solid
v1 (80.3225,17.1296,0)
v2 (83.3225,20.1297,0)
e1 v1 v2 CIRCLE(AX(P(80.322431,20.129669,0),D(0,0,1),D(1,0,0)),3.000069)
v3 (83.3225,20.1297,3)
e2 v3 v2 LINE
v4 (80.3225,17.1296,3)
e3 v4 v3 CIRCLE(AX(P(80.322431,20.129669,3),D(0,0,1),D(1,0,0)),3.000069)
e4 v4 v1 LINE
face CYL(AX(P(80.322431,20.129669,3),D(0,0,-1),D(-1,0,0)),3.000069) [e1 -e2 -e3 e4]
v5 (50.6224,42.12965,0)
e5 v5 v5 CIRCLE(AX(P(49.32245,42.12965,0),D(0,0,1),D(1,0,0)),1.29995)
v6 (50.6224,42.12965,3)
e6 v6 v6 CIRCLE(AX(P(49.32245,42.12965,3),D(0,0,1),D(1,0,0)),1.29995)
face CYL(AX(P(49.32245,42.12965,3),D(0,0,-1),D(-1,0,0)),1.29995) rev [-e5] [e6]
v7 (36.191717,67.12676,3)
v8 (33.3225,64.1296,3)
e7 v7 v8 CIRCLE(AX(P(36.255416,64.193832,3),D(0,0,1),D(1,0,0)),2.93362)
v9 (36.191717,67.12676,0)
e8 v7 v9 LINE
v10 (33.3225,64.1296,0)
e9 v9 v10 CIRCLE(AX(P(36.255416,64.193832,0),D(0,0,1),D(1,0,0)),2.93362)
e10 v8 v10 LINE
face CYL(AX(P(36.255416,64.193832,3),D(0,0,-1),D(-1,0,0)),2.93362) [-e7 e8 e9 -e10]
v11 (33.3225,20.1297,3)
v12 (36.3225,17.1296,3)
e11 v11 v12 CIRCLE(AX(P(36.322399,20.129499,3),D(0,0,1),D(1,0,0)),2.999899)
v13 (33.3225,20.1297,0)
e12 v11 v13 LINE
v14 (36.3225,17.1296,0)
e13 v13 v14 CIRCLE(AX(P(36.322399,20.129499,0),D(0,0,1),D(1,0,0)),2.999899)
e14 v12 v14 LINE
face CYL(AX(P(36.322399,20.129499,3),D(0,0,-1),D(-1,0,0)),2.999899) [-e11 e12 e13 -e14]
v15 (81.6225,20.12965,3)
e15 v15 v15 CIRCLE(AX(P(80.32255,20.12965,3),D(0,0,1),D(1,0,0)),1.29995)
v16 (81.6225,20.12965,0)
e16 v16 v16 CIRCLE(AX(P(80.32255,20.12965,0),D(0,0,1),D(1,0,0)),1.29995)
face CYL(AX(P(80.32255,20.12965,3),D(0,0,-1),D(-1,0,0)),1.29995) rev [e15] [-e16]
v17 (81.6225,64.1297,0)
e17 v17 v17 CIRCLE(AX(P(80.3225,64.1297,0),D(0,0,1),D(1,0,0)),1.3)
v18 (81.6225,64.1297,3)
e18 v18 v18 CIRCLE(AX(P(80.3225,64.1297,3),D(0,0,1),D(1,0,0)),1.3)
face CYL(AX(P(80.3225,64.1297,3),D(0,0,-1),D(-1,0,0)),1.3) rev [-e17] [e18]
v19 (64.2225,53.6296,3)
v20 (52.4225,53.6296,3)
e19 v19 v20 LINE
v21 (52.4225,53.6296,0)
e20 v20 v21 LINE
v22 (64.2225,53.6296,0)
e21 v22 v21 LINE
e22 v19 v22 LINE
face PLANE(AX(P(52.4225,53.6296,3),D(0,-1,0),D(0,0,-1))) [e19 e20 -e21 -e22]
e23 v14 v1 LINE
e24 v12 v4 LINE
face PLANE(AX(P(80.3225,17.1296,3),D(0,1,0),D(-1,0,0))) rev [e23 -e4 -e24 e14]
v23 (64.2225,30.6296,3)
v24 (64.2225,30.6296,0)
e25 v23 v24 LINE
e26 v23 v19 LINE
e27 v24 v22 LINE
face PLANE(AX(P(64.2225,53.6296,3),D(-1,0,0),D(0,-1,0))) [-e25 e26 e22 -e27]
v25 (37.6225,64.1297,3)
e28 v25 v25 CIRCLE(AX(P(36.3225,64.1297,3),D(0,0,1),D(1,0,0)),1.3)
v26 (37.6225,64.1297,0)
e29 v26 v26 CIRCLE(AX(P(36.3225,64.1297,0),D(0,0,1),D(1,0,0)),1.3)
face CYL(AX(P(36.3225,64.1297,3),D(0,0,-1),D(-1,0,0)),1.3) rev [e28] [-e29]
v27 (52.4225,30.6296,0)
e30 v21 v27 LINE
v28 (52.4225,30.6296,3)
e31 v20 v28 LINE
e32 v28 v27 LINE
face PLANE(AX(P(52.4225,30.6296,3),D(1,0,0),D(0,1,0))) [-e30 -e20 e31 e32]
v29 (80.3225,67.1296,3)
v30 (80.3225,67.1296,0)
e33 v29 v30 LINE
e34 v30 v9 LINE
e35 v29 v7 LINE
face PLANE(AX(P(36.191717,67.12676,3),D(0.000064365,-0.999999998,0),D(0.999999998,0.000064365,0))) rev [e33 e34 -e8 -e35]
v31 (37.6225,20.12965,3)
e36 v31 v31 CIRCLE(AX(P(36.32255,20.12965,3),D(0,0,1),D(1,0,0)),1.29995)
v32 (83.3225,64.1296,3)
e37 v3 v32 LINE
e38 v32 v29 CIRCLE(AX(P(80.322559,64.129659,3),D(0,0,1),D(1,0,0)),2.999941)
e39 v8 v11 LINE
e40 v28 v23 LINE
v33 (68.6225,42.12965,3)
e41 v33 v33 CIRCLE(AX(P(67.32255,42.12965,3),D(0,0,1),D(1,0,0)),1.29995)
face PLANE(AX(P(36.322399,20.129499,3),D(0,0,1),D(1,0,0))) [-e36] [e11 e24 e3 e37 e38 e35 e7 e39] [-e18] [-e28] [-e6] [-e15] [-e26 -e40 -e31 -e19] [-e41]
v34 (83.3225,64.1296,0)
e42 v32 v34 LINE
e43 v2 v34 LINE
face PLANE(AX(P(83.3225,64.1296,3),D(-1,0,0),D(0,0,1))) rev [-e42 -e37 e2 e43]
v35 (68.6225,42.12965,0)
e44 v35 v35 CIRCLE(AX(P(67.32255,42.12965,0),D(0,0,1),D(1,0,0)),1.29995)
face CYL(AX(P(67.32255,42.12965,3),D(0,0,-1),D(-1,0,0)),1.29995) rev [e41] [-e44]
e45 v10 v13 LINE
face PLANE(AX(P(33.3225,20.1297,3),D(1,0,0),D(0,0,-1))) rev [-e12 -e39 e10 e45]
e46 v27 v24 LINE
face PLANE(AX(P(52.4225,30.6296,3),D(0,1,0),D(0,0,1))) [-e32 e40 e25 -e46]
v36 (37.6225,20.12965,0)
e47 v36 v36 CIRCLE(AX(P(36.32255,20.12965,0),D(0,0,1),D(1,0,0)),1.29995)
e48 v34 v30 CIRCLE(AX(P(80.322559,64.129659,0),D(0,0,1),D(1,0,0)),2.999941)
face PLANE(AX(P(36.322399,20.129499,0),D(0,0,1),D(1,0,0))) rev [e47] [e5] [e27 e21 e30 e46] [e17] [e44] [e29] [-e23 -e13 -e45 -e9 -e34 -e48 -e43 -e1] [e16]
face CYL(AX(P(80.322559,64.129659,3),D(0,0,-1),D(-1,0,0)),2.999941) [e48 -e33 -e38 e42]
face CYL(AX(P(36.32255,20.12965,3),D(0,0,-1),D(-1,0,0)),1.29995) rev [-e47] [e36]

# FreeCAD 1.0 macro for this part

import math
import FreeCAD as App
import Part
import Sketcher
Q = App.Units.Quantity

doc = App.newDocument("Part")
params = doc.addObject("Spreadsheet::Sheet", "Params")
for row, (alias, value) in enumerate([
    ("sketch1_diameter", "2.6 mm"),
    ("sketch1_width", "44 mm"),
    ("sketch1_height", "23 mm"),
    ("sketch1_width2", "11.8 mm"),
    ("pad1_length", "3 mm"),
], start=1):
    params.set(f"A{row}", alias)
    params.set(f"B{row}", "=" + value)
    params.setAlias(f"B{row}", alias)

body = doc.addObject("PartDesign::Body", "Body")

sketch1 = doc.addObject("Sketcher::SketchObject", "Sketch")
body.addObject(sketch1)
sketch1.AttachmentSupport = (doc.XY_Plane, [""])
sketch1.MapMode = "FlatFace"
sketch1.addGeometry(Part.LineSegment(App.Vector(33.3225, 64.1296, 0), App.Vector(33.3225, 20.1297, 0)), False)
sketch1.addGeometry(Part.ArcOfCircle(Part.Circle(App.Vector(36.322399, 20.129499, 0), App.Vector(0, 0, 1), 2.999899), math.radians(179.996156), math.radians(270.001934)), False)
sketch1.addGeometry(Part.LineSegment(App.Vector(36.3225, 17.1296, 0), App.Vector(80.3225, 17.1296, 0)), False)
sketch1.addGeometry(Part.ArcOfCircle(Part.Circle(App.Vector(80.322431, 20.129669, 0), App.Vector(0, 0, 1), 3.000069), math.radians(-89.998673), math.radians(0.000583)), False)
sketch1.addGeometry(Part.LineSegment(App.Vector(83.3225, 20.1297, 0), App.Vector(83.3225, 64.1296, 0)), False)
sketch1.addGeometry(Part.ArcOfCircle(Part.Circle(App.Vector(80.322559, 64.129659, 0), App.Vector(0, 0, 1), 2.999941), math.radians(-0.001119), math.radians(90.001119)), False)
sketch1.addGeometry(Part.LineSegment(App.Vector(80.3225, 67.1296, 0), App.Vector(36.191717, 67.12676, 0)), False)
sketch1.addGeometry(Part.ArcOfCircle(Part.Circle(App.Vector(36.255416, 64.193832, 0), App.Vector(0, 0, 1), 2.93362), math.radians(91.244202), math.radians(181.25459)), False)
sketch1.addGeometry(Part.Circle(App.Vector(80.32255, 20.12965, 0), App.Vector(0, 0, 1), 1.29995), False)
sketch1.addGeometry(Part.Circle(App.Vector(67.32255, 42.12965, 0), App.Vector(0, 0, 1), 1.29995), False)
sketch1.addGeometry(Part.Circle(App.Vector(36.32255, 20.12965, 0), App.Vector(0, 0, 1), 1.29995), False)
sketch1.addGeometry(Part.LineSegment(App.Vector(52.4225, 30.6296, 0), App.Vector(52.4225, 53.6296, 0)), False)
sketch1.addGeometry(Part.LineSegment(App.Vector(52.4225, 53.6296, 0), App.Vector(64.2225, 53.6296, 0)), False)
sketch1.addGeometry(Part.LineSegment(App.Vector(64.2225, 53.6296, 0), App.Vector(64.2225, 30.6296, 0)), False)
sketch1.addGeometry(Part.LineSegment(App.Vector(64.2225, 30.6296, 0), App.Vector(52.4225, 30.6296, 0)), False)
sketch1.addGeometry(Part.Circle(App.Vector(49.32245, 42.12965, 0), App.Vector(0, 0, 1), 1.29995), False)
sketch1.addGeometry(Part.Circle(App.Vector(80.3225, 64.1297, 0), App.Vector(0, 0, 1), 1.3), False)
sketch1.addGeometry(Part.Circle(App.Vector(36.3225, 64.1297, 0), App.Vector(0, 0, 1), 1.3), False)
sketch1.addConstraint(Sketcher.Constraint("Coincident", 0, 2, 1, 1))
sketch1.addConstraint(Sketcher.Constraint("Coincident", 1, 2, 2, 1))
sketch1.addConstraint(Sketcher.Constraint("Coincident", 2, 2, 3, 1))
sketch1.addConstraint(Sketcher.Constraint("Coincident", 3, 2, 4, 1))
sketch1.addConstraint(Sketcher.Constraint("Coincident", 4, 2, 5, 1))
sketch1.addConstraint(Sketcher.Constraint("Coincident", 5, 2, 6, 1))
sketch1.addConstraint(Sketcher.Constraint("Coincident", 6, 2, 7, 1))
sketch1.addConstraint(Sketcher.Constraint("Coincident", 7, 2, 0, 1))
sketch1.addConstraint(Sketcher.Constraint("Coincident", 11, 2, 12, 1))
sketch1.addConstraint(Sketcher.Constraint("Coincident", 12, 2, 13, 1))
sketch1.addConstraint(Sketcher.Constraint("Coincident", 13, 2, 14, 1))
sketch1.addConstraint(Sketcher.Constraint("Coincident", 14, 2, 11, 1))
sketch1.addConstraint(Sketcher.Constraint("Vertical", 0))
sketch1.addConstraint(Sketcher.Constraint("Horizontal", 2))
sketch1.addConstraint(Sketcher.Constraint("Vertical", 4))
sketch1.addConstraint(Sketcher.Constraint("Vertical", 11))
sketch1.addConstraint(Sketcher.Constraint("Horizontal", 12))
sketch1.addConstraint(Sketcher.Constraint("Vertical", 13))
sketch1.addConstraint(Sketcher.Constraint("Horizontal", 14))
sketch1.addConstraint(Sketcher.Constraint("Equal", 8, 9))
sketch1.addConstraint(Sketcher.Constraint("Equal", 9, 10))
sketch1.addConstraint(Sketcher.Constraint("Equal", 10, 15))
sketch1.addConstraint(Sketcher.Constraint("Equal", 16, 17))
sketch1.addConstraint(Sketcher.Constraint("Horizontal", 8, 3, 10, 3))
sketch1.addConstraint(Sketcher.Constraint("Horizontal", 9, 3, 15, 3))
sketch1.addConstraint(Sketcher.Constraint("Horizontal", 16, 3, 17, 3))
sketch1.addConstraint(Sketcher.Constraint("Horizontal", 0, 2, 3, 2))
sketch1.addConstraint(Sketcher.Constraint("Horizontal", 4, 2, 7, 2))
sketch1.addConstraint(Sketcher.Constraint("Vertical", 17, 3, 1, 2))
sketch1.addConstraint(Sketcher.Constraint("Vertical", 16, 3, 2, 2))
sketch1.addConstraint(Sketcher.Constraint("Vertical", 2, 2, 5, 2))
sketch1.addConstraint(Sketcher.Constraint("Diameter", 16, Q("2.6 mm")))
sketch1.addConstraint(Sketcher.Constraint("DistanceX", 2, 1, 2, 2, Q("44 mm")))
sketch1.addConstraint(Sketcher.Constraint("DistanceY", 11, 1, 11, 2, Q("23 mm")))
sketch1.addConstraint(Sketcher.Constraint("DistanceX", 12, 1, 12, 2, Q("11.8 mm")))
sketch1.addConstraint(Sketcher.Constraint("DistanceX", 9, 3, 8, 3, Q("13 mm")))
sketch1.addConstraint(Sketcher.Constraint("DistanceY", 8, 3, 9, 3, Q("22 mm")))
sketch1.addConstraint(Sketcher.Constraint("DistanceX", 10, 3, 9, 3, Q("31 mm")))
sketch1.addConstraint(Sketcher.Constraint("DistanceX", 0, 2, 17, 3, Q("3 mm")))
sketch1.addConstraint(Sketcher.Constraint("DistanceY", 0, 2, 17, 3, Q("44 mm")))
sketch1.addConstraint(Sketcher.Constraint("DistanceX", 2, 2, 3, 2, Q("3 mm")))
sketch1.addConstraint(Sketcher.Constraint("DistanceY", 4, 2, 5, 2, Q("3 mm")))
sketch1.addConstraint(Sketcher.Constraint("Diameter", 8, Q("2.5999 mm")))
sketch1.addConstraint(Sketcher.Constraint("Radius", 1, Q("2.999899 mm")))
sketch1.addConstraint(Sketcher.Constraint("DistanceX", 17, 3, 11, 2, Q("16.1 mm")))
sketch1.addConstraint(Sketcher.Constraint("DistanceY", 2, 2, 13, 2, Q("13.5 mm")))
sketch1.addConstraint(Sketcher.Constraint("Radius", 3, Q("3.000069 mm")))
sketch1.addConstraint(Sketcher.Constraint("Radius", 5, Q("2.999941 mm")))
sketch1.addConstraint(Sketcher.Constraint("Radius", 7, Q("2.93362 mm")))
sketch1.addConstraint(Sketcher.Constraint("DistanceY", 0, 2, 0, 1, Q("43.9999 mm")))
sketch1.addConstraint(Sketcher.Constraint("DistanceX", -1, 1, 1, 3, Q("36.322399 mm")))
sketch1.addConstraint(Sketcher.Constraint("DistanceY", -1, 1, 1, 3, Q("20.129499 mm")))
sketch1.addConstraint(Sketcher.Constraint("DistanceY", -1, 1, 16, 3, Q("64.1297 mm")))
sketch1.addConstraint(Sketcher.Constraint("DistanceX", 15, 3, 9, 3, Q("18.0001 mm")))
sketch1.addConstraint(Sketcher.Constraint("DistanceX", 6, 2, 7, 3, Q("0.0637 mm")))
sketch1.addConstraint(Sketcher.Constraint("DistanceY", -1, 1, 7, 3, Q("64.193832 mm")))
sketch1.addConstraint(Sketcher.Constraint("DistanceX", -1, 1, 8, 3, Q("80.32255 mm")))
sketch1.addConstraint(Sketcher.Constraint("DistanceY", -1, 1, 8, 3, Q("20.12965 mm")))
sketch1.setExpression("Constraints[31]", "Params.sketch1_diameter")
sketch1.setExpression("Constraints[32]", "Params.sketch1_width")
sketch1.setExpression("Constraints[33]", "Params.sketch1_height")
sketch1.setExpression("Constraints[34]", "Params.sketch1_width2")
pad1 = doc.addObject("PartDesign::Pad", "Pad")
body.addObject(pad1)
pad1.Profile = sketch1
pad1.setExpression("Length", "Params.pad1_length")

doc.recompute()
